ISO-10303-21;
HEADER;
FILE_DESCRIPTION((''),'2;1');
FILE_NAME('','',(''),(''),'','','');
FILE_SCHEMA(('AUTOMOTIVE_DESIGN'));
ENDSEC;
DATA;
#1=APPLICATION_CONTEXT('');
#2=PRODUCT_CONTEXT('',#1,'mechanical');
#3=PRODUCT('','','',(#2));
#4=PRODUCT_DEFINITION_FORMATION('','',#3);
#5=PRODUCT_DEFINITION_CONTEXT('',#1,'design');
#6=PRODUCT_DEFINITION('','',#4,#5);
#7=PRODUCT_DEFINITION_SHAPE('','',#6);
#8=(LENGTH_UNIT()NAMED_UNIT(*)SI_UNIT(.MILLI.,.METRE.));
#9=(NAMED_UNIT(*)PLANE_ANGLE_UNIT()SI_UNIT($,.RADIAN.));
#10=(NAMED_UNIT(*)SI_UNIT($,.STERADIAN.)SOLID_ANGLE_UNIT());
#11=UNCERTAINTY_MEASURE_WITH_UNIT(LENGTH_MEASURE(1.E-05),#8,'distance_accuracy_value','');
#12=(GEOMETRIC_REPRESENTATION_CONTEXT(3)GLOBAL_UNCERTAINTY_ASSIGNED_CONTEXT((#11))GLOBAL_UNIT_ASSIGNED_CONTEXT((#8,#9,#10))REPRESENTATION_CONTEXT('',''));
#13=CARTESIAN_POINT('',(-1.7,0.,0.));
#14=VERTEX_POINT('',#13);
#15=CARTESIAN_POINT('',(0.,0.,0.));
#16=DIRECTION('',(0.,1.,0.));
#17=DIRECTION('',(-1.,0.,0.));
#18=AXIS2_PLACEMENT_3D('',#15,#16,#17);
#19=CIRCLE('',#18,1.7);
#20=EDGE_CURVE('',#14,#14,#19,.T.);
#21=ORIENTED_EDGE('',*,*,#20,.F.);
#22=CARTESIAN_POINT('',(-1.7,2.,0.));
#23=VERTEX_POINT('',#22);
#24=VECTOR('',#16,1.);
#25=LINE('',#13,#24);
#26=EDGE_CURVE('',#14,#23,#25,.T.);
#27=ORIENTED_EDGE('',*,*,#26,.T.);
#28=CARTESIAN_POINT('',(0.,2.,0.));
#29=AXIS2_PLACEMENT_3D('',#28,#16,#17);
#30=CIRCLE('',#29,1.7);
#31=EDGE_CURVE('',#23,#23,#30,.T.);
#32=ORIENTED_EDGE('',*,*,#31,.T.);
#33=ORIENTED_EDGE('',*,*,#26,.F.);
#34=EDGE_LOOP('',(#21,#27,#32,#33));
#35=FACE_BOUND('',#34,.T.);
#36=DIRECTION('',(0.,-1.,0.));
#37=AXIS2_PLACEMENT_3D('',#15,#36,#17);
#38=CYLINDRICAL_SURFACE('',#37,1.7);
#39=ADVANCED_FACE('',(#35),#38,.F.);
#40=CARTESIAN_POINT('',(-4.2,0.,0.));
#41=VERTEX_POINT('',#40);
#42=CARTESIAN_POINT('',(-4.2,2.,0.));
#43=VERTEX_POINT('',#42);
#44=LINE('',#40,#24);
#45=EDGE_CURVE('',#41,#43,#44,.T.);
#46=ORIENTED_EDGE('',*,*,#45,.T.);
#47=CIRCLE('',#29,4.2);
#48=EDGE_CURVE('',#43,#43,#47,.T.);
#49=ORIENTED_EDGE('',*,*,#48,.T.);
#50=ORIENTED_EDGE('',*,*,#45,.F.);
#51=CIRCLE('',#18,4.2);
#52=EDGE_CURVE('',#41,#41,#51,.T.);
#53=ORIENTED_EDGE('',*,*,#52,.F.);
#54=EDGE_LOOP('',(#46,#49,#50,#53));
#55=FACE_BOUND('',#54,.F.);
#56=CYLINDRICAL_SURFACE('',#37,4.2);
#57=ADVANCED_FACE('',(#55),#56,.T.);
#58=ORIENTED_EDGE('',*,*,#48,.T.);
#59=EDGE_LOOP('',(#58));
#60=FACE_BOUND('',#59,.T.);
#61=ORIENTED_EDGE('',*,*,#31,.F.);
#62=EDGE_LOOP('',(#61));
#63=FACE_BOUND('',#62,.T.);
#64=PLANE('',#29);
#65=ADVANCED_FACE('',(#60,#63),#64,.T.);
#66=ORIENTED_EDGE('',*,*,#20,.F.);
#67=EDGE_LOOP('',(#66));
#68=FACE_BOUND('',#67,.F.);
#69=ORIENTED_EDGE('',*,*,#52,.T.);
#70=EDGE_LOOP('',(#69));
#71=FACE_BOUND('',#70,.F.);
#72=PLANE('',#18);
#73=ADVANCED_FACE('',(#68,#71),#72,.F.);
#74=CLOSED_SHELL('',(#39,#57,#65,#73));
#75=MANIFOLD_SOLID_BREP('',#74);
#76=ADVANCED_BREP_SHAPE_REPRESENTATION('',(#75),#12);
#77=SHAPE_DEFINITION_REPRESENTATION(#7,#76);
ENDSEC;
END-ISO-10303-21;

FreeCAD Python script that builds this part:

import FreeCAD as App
import Part
import Sketcher
from FreeCAD import Vector
Q = App.Units.Quantity

doc = App.newDocument("Part")
body = doc.addObject("PartDesign::Body", "Body")

sketch1 = doc.addObject("Sketcher::SketchObject", "Sketch")
body.addObject(sketch1)
sketch1.AttachmentSupport = (doc.XZ_Plane, [""])
sketch1.MapMode = "FlatFace"
sketch1.addGeometry([
    Part.Circle(Vector(0, 0, 0), Vector(0, 0, 1), 4.2),
    Part.Circle(Vector(0, 0, 0), Vector(0, 0, 1), 1.7),
], False)
sketch1.addConstraint([
    Sketcher.Constraint("Coincident", 0, 3, -1, 1),
    Sketcher.Constraint("Coincident", 1, 3, -1, 1),
    Sketcher.Constraint("Diameter", 1, Q("3.4 mm")),
    Sketcher.Constraint("Diameter", 0, Q("8.4 mm")),
])
pad1 = doc.addObject("PartDesign::Pad", "Pad")
body.addObject(pad1)
pad1.Profile = sketch1
pad1.Length = 2
pad1.Reversed = True

doc.recompute()
